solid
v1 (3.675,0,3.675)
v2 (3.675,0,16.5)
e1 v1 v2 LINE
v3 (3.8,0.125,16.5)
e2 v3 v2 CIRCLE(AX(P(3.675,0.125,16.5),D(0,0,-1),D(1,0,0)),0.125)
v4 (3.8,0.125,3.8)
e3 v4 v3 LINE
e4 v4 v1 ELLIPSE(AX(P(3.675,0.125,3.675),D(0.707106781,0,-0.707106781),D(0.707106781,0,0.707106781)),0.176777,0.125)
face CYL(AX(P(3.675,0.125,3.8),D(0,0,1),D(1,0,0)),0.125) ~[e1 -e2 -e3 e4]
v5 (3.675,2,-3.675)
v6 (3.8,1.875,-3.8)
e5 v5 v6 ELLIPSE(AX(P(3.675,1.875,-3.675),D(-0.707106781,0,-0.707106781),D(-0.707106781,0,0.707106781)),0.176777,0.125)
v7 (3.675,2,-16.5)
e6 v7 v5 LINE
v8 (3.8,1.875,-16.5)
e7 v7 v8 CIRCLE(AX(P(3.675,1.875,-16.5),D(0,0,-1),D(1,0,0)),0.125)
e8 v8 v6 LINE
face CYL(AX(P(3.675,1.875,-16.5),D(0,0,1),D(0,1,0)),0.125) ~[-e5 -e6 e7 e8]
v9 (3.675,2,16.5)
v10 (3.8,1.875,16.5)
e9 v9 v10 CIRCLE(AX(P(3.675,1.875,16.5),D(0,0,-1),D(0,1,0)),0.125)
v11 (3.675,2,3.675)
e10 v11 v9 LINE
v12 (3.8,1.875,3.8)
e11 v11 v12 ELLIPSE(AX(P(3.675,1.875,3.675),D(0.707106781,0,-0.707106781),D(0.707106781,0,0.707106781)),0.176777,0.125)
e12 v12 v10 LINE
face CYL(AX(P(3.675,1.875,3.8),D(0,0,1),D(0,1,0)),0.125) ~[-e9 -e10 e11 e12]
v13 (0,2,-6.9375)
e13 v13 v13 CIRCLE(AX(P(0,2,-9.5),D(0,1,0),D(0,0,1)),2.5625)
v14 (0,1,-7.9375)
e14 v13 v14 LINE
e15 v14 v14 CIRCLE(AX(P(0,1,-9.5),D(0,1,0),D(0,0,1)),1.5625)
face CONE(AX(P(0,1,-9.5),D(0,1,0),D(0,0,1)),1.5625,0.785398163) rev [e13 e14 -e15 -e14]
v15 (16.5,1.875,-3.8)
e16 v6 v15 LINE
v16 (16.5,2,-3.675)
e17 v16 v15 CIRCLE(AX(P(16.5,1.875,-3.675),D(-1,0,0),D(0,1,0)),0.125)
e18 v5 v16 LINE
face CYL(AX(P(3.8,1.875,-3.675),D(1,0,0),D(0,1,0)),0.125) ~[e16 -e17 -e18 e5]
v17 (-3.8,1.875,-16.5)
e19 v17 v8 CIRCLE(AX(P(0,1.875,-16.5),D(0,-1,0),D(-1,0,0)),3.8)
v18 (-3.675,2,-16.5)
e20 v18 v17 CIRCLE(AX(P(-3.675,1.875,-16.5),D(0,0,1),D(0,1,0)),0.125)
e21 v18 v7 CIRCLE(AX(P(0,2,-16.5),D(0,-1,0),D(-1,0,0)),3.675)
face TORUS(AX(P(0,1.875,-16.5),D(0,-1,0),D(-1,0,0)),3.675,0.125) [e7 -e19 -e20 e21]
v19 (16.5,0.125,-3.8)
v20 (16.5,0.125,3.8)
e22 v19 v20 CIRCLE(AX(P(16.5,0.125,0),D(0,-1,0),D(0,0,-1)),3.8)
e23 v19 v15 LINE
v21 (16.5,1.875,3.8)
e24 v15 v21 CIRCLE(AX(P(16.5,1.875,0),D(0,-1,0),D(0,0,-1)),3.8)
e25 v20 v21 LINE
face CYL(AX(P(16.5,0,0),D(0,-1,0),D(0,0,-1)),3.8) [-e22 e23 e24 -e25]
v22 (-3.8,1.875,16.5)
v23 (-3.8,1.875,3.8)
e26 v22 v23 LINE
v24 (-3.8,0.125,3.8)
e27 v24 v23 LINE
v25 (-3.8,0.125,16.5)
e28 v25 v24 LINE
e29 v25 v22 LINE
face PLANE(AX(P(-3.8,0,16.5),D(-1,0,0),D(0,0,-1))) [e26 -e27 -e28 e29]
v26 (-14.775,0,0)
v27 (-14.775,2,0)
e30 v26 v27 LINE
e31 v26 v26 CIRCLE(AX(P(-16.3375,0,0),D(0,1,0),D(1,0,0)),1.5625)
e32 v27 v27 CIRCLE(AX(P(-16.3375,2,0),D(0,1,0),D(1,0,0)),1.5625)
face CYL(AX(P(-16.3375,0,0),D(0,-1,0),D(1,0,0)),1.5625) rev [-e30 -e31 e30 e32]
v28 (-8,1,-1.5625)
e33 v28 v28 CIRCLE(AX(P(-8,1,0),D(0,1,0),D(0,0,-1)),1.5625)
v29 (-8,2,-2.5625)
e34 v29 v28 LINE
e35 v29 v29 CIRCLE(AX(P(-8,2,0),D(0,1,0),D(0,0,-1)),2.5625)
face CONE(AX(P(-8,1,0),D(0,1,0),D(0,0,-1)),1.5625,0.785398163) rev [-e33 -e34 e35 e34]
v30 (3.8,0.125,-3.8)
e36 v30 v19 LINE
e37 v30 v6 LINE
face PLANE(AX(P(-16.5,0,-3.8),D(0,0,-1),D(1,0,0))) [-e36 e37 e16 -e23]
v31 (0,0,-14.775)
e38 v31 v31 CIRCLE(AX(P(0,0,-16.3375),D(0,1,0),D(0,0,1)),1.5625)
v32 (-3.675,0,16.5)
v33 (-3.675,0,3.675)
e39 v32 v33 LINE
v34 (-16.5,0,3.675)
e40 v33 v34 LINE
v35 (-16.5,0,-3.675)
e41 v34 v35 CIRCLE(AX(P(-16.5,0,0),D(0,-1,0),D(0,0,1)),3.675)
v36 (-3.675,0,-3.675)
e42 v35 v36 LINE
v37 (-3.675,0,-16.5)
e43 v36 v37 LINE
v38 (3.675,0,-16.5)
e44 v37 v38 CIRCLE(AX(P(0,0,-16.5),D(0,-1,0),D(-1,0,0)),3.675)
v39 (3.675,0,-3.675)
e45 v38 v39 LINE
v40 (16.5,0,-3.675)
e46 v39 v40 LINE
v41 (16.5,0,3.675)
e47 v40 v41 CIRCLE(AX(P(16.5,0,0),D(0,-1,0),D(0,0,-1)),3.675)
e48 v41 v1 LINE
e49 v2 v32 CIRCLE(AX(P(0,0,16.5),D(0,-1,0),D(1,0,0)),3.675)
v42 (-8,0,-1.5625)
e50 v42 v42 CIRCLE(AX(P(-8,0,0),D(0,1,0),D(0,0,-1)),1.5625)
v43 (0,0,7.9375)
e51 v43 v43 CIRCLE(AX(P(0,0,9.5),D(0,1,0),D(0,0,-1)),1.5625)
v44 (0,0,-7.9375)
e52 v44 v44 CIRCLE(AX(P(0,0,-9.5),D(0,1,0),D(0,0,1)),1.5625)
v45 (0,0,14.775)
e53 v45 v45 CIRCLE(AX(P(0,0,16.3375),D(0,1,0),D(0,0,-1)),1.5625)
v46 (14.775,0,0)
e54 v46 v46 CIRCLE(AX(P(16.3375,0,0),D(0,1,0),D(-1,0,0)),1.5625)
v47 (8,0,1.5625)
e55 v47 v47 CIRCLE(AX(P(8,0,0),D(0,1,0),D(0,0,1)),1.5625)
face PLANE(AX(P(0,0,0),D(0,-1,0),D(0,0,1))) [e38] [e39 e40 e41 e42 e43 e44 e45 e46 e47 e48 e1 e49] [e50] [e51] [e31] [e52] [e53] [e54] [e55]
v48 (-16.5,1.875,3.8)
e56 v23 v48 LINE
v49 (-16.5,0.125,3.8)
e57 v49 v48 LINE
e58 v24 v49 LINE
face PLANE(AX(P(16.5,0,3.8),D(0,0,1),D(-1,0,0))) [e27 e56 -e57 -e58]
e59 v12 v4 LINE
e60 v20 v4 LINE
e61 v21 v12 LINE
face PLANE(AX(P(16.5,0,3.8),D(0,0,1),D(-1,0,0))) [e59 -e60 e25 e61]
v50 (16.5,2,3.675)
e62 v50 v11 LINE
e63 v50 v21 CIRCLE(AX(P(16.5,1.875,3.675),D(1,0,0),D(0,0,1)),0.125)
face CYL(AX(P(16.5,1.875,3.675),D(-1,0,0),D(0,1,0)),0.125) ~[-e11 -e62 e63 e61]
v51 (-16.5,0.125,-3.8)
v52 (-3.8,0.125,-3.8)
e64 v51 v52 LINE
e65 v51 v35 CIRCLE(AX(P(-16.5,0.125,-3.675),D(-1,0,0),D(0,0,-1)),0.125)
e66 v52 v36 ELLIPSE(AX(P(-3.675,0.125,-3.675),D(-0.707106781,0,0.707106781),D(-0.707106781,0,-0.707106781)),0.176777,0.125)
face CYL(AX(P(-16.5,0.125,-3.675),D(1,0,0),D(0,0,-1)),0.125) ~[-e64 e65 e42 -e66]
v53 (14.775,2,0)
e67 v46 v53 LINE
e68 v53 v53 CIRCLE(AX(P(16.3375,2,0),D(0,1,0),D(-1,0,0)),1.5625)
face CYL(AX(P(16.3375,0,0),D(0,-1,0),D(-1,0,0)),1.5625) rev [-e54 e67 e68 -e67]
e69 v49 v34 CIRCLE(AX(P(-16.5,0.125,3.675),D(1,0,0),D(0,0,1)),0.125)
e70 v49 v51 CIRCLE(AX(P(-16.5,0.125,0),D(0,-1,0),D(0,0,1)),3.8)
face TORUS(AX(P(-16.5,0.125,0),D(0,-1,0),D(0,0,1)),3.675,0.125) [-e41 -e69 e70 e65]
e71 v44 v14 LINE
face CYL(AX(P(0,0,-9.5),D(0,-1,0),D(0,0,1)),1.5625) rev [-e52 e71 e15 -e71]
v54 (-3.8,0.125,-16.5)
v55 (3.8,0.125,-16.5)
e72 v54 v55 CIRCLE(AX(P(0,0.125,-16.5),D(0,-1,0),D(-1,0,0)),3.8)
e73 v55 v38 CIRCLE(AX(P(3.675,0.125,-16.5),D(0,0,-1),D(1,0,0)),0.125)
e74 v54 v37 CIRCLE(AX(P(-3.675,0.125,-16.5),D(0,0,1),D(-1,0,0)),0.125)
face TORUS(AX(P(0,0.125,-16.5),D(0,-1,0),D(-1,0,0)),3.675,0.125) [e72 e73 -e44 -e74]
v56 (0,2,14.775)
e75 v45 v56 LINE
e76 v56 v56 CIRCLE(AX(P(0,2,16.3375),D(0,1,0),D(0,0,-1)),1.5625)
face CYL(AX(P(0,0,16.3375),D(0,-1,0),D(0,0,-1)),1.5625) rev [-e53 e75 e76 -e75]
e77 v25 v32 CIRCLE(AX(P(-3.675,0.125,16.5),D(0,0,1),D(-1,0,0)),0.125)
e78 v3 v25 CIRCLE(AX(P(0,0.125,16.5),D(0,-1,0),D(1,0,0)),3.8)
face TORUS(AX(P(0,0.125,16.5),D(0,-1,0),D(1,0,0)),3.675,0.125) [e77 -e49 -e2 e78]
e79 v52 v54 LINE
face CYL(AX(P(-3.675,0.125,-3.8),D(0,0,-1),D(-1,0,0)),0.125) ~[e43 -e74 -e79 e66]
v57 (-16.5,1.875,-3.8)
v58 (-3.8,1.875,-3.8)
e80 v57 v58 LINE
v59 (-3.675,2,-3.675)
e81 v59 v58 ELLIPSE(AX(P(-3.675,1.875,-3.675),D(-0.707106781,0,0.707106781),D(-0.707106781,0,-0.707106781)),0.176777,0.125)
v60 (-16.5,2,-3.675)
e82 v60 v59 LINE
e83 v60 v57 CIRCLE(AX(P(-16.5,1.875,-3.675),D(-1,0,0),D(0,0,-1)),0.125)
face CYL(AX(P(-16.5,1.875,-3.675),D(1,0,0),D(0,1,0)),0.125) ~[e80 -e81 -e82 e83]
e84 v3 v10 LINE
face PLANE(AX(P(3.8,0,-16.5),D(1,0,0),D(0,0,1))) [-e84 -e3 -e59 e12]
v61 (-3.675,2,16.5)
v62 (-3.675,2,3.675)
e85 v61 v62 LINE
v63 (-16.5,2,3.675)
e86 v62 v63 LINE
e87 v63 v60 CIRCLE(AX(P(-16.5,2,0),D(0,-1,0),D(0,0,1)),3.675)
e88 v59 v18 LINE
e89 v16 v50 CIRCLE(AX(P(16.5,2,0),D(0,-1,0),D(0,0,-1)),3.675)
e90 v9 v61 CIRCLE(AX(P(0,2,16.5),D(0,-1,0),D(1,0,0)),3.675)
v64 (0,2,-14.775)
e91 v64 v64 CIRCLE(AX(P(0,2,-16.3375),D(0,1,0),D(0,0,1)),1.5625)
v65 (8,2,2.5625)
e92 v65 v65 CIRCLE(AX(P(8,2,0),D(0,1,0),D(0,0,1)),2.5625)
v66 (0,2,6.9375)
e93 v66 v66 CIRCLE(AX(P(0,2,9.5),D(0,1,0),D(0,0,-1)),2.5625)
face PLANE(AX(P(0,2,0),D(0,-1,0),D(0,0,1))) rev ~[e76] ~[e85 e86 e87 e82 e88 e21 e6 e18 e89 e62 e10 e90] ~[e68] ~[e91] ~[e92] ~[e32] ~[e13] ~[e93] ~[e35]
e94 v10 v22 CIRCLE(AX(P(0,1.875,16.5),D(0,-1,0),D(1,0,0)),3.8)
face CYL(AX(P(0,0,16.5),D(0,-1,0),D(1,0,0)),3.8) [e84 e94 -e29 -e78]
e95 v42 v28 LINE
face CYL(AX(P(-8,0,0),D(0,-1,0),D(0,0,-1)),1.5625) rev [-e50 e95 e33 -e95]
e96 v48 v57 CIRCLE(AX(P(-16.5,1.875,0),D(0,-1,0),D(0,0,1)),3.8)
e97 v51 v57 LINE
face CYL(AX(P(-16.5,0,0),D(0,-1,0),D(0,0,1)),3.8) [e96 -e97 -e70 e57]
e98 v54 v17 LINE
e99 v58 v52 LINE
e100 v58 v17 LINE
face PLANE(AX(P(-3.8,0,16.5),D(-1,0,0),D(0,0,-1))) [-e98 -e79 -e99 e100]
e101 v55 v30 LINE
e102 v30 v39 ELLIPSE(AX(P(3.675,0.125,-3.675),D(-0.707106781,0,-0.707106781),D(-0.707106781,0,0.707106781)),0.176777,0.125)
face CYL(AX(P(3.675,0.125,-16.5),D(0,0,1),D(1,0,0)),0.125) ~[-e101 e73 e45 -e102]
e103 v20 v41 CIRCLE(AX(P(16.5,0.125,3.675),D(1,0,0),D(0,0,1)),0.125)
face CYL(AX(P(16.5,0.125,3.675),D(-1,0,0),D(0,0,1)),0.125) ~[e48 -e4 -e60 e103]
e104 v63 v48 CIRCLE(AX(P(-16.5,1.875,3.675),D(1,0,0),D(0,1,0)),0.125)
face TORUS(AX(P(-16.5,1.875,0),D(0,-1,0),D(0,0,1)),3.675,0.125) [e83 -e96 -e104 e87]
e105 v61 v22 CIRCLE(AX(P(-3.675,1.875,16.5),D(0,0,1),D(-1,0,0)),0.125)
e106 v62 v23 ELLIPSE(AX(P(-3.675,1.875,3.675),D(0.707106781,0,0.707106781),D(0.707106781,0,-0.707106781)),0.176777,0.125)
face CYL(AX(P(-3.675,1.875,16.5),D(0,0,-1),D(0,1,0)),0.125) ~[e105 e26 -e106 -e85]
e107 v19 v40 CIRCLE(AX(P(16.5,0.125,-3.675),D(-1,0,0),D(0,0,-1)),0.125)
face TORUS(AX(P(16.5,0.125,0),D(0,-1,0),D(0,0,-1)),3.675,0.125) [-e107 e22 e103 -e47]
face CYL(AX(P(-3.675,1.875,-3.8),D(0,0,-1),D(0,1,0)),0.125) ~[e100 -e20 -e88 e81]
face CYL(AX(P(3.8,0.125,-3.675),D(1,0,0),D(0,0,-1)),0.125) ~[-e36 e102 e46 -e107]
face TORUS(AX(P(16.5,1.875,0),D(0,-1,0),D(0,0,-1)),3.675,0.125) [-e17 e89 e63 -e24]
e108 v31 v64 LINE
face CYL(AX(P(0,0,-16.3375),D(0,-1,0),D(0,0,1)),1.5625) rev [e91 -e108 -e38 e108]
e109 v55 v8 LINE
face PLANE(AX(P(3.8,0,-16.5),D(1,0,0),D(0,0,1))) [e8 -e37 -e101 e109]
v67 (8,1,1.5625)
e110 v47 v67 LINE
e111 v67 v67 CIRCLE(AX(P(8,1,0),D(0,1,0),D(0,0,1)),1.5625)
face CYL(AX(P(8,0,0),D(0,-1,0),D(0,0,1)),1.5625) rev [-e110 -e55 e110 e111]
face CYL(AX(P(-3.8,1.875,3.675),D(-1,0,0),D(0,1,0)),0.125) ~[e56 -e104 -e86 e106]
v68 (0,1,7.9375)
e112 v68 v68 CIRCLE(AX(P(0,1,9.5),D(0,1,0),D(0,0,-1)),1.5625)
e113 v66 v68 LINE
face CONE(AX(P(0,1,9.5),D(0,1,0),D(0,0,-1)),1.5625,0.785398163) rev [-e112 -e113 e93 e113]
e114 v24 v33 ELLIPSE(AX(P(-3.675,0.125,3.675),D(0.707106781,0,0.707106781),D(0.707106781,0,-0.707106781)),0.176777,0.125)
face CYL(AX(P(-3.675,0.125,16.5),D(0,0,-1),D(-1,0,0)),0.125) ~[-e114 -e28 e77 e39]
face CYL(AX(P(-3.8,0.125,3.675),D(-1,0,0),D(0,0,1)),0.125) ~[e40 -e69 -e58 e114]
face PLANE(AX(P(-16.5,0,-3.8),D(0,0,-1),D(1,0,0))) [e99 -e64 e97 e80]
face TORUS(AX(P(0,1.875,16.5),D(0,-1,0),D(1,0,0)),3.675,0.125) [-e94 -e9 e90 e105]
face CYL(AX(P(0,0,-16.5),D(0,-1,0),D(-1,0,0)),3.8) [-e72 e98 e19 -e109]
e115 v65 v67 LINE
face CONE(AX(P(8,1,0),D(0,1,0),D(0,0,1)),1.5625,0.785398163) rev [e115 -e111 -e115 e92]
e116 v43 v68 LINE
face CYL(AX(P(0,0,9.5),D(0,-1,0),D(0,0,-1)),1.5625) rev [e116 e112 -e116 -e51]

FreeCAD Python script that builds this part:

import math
import FreeCAD as App
import Part
import Sketcher

V = App.Vector


def edges_at(feature, points):
    """Names of the edges that pass closest to the given points."""
    edges = feature.Shape.Edges
    near = lambda p: min(range(len(edges)), key=lambda i: edges[i].distToShape(Part.Vertex(*p))[0])
    return sorted({f"Edge{near(p) + 1}" for p in points})

doc = App.newDocument("Part")
body = doc.addObject("PartDesign::Body", "Body")

# Sketch on XZ plane
sketch1 = body.newObject("Sketcher::SketchObject", "Sketch")
sketch1.AttachmentSupport = (doc.getObject("XZ_Plane"), [""])
sketch1.MapMode = "FlatFace"
sketch1.addGeometry([
    Part.LineSegment(V(-3.8, -16.5, 0), V(-3.8, 16.5, 0)),  # 0
    Part.ArcOfCircle(Part.Circle(V(0, 16.5, 0), V(0, 0, 1), 3.8), math.radians(0), math.radians(180)),  # 1
    Part.LineSegment(V(3.8, 16.5, 0), V(3.8, -16.5, 0)),  # 2
    Part.ArcOfCircle(Part.Circle(V(0, -16.5, 0), V(0, 0, 1), 3.8), math.radians(180), math.radians(360)),  # 3
    Part.Circle(V(0, 16.3, 0), V(0, 0, 1), 1.6),  # 4
    Part.Circle(V(0, -16.3, 0), V(0, 0, 1), 1.6),  # 5
], False)
sketch1.addConstraint([
    Sketcher.Constraint("Tangent", 0, 2, 1, 2),
    Sketcher.Constraint("Tangent", 1, 1, 2, 1),
    Sketcher.Constraint("Tangent", 2, 2, 3, 2),
    Sketcher.Constraint("Tangent", 3, 1, 0, 1),
    Sketcher.Constraint("Vertical", 0),
    Sketcher.Constraint("Vertical", 2),
    Sketcher.Constraint("Equal", 4, 5),
    Sketcher.Constraint("Symmetric", 1, 3, 3, 3, -1, 1),
    Sketcher.Constraint("Symmetric", 4, 3, 5, 3, -1, 1),
    Sketcher.Constraint("PointOnObject", 4, 3, -2),
    Sketcher.Constraint("Radius", 1, 3.8),
    Sketcher.Constraint("DistanceY", 0, 1, 0, 2, 33.0),
    Sketcher.Constraint("Diameter", 4, 3.125),
    Sketcher.Constraint("DistanceY", 5, 3, 4, 3, 32.675),
])
pad1 = body.newObject("PartDesign::Pad", "Pad")
pad1.Profile = sketch1
pad1.Length = 2
pad1.Reversed = True
doc.recompute()

polarpattern = body.newObject("PartDesign::PolarPattern", "PolarPattern")
polarpattern.Originals = [pad1]
polarpattern.Axis = (doc.getObject("Y_Axis"), [""])
polarpattern.Angle = 90
polarpattern.Occurrences = 2
body.Tip = polarpattern

# Sketch on XZ plane
sketch2 = body.newObject("Sketcher::SketchObject", "Sketch001")
sketch2.AttachmentSupport = (doc.getObject("XZ_Plane"), [""])
sketch2.MapMode = "FlatFace"
sketch2.addGeometry([
    Part.Circle(V(0, -9.5, 0), V(0, 0, 1), 1.6),
    Part.Circle(V(8, 0, 0), V(0, 0, 1), 1.6),
    Part.Circle(V(0, 9.5, 0), V(0, 0, 1), 1.6),
    Part.Circle(V(-8, 0, 0), V(0, 0, 1), 1.6),
], False)
sketch2.addConstraint([
    Sketcher.Constraint("Equal", 0, 1),
    Sketcher.Constraint("Equal", 1, 2),
    Sketcher.Constraint("Equal", 2, 3),
    Sketcher.Constraint("Symmetric", 0, 3, 2, 3, -1, 1),
    Sketcher.Constraint("Symmetric", 1, 3, 3, 3, -1, 1),
    Sketcher.Constraint("PointOnObject", 0, 3, -2),
    Sketcher.Constraint("PointOnObject", 1, 3, -1),
    Sketcher.Constraint("Diameter", 0, 3.125),
    Sketcher.Constraint("DistanceX", -1, 1, 1, 3, 8.0),
    Sketcher.Constraint("DistanceY", 0, 3, 2, 3, 19.0),
])
pocket1 = body.newObject("PartDesign::Pocket", "Pocket")
pocket1.Profile = sketch2
pocket1.Length = 2
doc.recompute()

chamfer = body.newObject("PartDesign::Chamfer", "Chamfer")
chamfer.Base = (pocket1, edges_at(pocket1, [
    (0, 2, -11.062),
    (8, 2, -1.562),
    (0, 2, 11.062),
    (-8, 2, 1.562),
]))
chamfer.Size = 1
doc.recompute()

fillet = body.newObject("PartDesign::Fillet", "Fillet")
fillet.Base = (chamfer, edges_at(chamfer, [
    (0, 2, -20.3),
    (-3.8, 2, -10.15),
    (-3.8, 0, 10.15),
    (-3.8, 2, 10.15),
    (3.8, 0, -10.15),
    (3.8, 2, -10.15),
    (10.15, 2, 3.8),
    (20.3, 2, 0),
    (10.15, 2, -3.8),
    (-10.15, 2, -3.8),
    (-20.3, 2, 0),
    (-10.15, 2, 3.8),
    (10.15, 0, -3.8),
    (-10.15, 0, -3.8),
    (10.15, 0, 3.8),
    (-10.15, 0, 3.8),
    (20.3, 0, 0),
    (-20.3, 0, 0),
    (0, 2, 20.3),
    (-3.8, 0, -10.15),
    (0, 0, -20.3),
    (3.8, 0, 10.15),
    (0, 0, 20.3),
    (3.8, 2, 10.15),
]))
fillet.Radius = 0.125

doc.recompute()
